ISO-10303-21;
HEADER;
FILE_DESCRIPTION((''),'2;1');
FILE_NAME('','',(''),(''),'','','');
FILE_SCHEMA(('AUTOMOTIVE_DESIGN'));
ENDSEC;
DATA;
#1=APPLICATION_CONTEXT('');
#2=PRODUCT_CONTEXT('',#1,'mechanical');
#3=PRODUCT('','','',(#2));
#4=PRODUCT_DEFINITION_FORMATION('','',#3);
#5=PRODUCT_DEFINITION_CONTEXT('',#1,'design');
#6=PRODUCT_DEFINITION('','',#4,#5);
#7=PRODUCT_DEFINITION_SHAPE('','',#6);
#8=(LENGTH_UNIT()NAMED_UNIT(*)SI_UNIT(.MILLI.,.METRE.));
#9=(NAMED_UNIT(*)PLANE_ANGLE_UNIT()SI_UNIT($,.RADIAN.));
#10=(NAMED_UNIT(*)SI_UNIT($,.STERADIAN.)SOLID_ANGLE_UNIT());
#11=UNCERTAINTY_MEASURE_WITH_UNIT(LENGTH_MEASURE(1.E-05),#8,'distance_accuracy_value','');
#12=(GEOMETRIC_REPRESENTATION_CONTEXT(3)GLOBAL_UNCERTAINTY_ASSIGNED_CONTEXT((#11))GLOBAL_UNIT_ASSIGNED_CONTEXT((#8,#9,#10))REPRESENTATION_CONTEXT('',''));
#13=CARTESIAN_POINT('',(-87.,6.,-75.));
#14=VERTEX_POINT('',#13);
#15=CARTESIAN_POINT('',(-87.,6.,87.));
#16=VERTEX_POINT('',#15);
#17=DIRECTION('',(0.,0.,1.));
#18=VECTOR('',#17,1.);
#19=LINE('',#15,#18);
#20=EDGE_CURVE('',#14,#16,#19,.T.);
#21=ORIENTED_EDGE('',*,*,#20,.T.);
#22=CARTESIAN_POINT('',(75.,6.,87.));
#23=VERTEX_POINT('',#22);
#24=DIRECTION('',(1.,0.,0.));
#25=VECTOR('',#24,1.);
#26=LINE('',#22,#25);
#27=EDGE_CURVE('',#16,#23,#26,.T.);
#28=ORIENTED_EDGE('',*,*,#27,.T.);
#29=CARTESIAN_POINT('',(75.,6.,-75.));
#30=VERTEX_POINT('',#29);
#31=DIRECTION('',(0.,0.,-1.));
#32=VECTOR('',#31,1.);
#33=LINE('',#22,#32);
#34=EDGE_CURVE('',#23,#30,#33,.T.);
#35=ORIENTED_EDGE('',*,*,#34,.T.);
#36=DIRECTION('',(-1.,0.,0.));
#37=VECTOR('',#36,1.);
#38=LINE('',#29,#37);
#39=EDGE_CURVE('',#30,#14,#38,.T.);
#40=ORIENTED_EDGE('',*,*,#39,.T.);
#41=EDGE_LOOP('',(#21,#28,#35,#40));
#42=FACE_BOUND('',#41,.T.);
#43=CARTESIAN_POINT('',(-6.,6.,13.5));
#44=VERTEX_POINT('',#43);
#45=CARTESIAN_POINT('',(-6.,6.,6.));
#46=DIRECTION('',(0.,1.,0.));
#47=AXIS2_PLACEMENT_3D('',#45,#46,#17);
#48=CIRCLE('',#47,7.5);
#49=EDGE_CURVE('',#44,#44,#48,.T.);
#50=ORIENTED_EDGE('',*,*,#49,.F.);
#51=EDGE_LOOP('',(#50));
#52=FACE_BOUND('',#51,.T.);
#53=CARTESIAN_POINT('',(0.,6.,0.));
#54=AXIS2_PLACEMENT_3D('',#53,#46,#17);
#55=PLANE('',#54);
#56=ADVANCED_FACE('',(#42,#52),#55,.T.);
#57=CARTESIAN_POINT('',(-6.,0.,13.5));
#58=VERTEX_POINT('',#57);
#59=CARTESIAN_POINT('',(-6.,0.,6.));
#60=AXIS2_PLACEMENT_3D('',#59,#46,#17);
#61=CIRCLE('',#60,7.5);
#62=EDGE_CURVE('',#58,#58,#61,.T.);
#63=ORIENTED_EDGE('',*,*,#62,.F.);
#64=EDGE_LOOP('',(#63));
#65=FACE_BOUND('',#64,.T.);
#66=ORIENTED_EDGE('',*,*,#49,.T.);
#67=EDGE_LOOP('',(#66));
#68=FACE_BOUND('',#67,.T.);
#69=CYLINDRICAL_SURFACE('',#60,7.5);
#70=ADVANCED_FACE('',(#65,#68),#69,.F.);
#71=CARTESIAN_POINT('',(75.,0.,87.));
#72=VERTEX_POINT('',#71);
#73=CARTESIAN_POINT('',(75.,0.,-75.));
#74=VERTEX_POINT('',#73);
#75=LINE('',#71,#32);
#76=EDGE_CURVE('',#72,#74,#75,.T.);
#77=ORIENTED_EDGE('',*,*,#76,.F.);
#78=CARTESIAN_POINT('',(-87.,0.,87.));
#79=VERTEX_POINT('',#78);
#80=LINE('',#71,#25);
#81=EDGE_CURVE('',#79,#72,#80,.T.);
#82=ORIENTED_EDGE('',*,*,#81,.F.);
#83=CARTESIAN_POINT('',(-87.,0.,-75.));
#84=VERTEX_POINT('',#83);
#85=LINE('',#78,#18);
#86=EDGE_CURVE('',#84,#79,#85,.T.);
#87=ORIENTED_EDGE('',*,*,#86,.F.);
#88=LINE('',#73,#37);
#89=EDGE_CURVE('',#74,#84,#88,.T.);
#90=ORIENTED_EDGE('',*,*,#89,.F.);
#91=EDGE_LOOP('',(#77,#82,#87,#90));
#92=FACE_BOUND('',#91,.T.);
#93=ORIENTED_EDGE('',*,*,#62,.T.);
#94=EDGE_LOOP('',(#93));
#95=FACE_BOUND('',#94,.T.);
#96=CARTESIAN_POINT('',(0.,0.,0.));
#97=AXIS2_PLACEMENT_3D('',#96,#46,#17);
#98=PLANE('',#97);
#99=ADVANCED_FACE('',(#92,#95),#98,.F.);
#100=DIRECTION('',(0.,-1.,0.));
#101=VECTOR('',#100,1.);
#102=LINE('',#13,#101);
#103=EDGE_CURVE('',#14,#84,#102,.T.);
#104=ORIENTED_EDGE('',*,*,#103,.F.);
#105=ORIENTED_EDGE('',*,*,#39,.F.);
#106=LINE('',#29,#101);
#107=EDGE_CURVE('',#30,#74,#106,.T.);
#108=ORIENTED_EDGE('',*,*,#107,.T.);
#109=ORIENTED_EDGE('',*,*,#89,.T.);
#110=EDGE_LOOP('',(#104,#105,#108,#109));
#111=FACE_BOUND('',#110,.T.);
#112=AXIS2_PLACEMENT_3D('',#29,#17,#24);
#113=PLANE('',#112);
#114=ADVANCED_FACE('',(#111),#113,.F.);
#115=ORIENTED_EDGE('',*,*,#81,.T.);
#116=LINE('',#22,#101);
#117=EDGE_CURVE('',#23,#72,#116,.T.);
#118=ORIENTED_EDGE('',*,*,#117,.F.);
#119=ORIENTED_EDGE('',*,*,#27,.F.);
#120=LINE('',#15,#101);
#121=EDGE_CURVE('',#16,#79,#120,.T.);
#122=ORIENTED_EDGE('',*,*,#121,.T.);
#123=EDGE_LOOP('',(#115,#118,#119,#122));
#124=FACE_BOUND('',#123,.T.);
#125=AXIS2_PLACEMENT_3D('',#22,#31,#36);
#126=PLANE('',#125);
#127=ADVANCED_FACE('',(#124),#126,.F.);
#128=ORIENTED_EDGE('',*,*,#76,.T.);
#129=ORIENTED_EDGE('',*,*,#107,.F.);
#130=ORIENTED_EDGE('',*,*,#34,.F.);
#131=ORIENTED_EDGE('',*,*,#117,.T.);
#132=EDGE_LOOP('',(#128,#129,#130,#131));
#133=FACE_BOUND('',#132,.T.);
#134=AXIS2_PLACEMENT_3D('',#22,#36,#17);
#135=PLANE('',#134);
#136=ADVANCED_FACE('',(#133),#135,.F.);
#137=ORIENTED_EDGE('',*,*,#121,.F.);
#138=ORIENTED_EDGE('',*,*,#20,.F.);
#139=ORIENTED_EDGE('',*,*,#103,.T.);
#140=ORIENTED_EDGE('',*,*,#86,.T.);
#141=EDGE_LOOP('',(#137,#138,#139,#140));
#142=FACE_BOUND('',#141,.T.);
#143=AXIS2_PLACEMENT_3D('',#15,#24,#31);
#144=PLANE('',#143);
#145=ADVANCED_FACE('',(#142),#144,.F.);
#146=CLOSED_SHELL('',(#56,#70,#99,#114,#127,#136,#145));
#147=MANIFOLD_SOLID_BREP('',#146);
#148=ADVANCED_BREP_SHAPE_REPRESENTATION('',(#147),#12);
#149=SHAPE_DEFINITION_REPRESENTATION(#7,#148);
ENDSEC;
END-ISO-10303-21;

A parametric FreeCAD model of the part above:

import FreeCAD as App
import Part
import Sketcher


def add_polygon(sketch, points):
    """Adds a closed chain of lines whose ends are joined by coincident constraints."""
    first, n = sketch.GeometryCount, len(points)
    for a, b in zip(points, points[1:] + points[:1]):
        sketch.addGeometry(Part.LineSegment(App.Vector(*a, 0), App.Vector(*b, 0)), False)
    for i in range(n):
        sketch.addConstraint(Sketcher.Constraint("Coincident", first + i, 2, first + (i + 1) % n, 1))

doc = App.newDocument("Part")
body = doc.addObject("PartDesign::Body", "Body")

# Sketch on XZ plane
sketch1 = body.newObject("Sketcher::SketchObject", "Sketch")
sketch1.AttachmentSupport = (doc.getObject("XZ_Plane"), [""])
sketch1.MapMode = "FlatFace"
add_polygon(sketch1, [(-87, -75), (-87, 87), (75, 87), (75, -75)])  # lines 0-3
sketch1.addConstraint(Sketcher.Constraint("Vertical", 0))
sketch1.addConstraint(Sketcher.Constraint("Horizontal", 1))
sketch1.addConstraint(Sketcher.Constraint("Vertical", 2))
sketch1.addConstraint(Sketcher.Constraint("Horizontal", 3))
sketch1.addConstraint(Sketcher.Constraint("Equal", 3, 0))
sketch1.addConstraint(Sketcher.Constraint("DistanceX", 1, 1, 1, 2, 162.0))
sketch1.addConstraint(Sketcher.Constraint("DistanceX", 0, 2, -1, 1, 87.0))
sketch1.addConstraint(Sketcher.Constraint("DistanceY", -1, 1, 0, 2, 87.0))
pad1 = body.newObject("PartDesign::Pad", "Pad")
pad1.Profile = sketch1
pad1.Length = 6
pad1.Reversed = True

# Sketch on XZ plane
sketch2 = body.newObject("Sketcher::SketchObject", "Sketch001")
sketch2.AttachmentSupport = (doc.getObject("XZ_Plane"), [""])
sketch2.MapMode = "FlatFace"
sketch2.AttachmentOffset = App.Placement(App.Vector(0, 0, -6), App.Rotation())
sketch2.addGeometry(Part.Circle(App.Vector(-6, 6, 0), App.Vector(0, 0, 1), 7.5), False)
sketch2.addConstraint(Sketcher.Constraint("Diameter", 0, 15.0))
sketch2.addConstraint(Sketcher.Constraint("DistanceX", 0, 3, -1, 1, 6.0))
sketch2.addConstraint(Sketcher.Constraint("DistanceY", -1, 1, 0, 3, 6.0))
pocket1 = body.newObject("PartDesign::Pocket", "Pocket")
pocket1.Profile = sketch2
pocket1.Type = "ThroughAll"
pocket1.Reversed = True

doc.recompute()
